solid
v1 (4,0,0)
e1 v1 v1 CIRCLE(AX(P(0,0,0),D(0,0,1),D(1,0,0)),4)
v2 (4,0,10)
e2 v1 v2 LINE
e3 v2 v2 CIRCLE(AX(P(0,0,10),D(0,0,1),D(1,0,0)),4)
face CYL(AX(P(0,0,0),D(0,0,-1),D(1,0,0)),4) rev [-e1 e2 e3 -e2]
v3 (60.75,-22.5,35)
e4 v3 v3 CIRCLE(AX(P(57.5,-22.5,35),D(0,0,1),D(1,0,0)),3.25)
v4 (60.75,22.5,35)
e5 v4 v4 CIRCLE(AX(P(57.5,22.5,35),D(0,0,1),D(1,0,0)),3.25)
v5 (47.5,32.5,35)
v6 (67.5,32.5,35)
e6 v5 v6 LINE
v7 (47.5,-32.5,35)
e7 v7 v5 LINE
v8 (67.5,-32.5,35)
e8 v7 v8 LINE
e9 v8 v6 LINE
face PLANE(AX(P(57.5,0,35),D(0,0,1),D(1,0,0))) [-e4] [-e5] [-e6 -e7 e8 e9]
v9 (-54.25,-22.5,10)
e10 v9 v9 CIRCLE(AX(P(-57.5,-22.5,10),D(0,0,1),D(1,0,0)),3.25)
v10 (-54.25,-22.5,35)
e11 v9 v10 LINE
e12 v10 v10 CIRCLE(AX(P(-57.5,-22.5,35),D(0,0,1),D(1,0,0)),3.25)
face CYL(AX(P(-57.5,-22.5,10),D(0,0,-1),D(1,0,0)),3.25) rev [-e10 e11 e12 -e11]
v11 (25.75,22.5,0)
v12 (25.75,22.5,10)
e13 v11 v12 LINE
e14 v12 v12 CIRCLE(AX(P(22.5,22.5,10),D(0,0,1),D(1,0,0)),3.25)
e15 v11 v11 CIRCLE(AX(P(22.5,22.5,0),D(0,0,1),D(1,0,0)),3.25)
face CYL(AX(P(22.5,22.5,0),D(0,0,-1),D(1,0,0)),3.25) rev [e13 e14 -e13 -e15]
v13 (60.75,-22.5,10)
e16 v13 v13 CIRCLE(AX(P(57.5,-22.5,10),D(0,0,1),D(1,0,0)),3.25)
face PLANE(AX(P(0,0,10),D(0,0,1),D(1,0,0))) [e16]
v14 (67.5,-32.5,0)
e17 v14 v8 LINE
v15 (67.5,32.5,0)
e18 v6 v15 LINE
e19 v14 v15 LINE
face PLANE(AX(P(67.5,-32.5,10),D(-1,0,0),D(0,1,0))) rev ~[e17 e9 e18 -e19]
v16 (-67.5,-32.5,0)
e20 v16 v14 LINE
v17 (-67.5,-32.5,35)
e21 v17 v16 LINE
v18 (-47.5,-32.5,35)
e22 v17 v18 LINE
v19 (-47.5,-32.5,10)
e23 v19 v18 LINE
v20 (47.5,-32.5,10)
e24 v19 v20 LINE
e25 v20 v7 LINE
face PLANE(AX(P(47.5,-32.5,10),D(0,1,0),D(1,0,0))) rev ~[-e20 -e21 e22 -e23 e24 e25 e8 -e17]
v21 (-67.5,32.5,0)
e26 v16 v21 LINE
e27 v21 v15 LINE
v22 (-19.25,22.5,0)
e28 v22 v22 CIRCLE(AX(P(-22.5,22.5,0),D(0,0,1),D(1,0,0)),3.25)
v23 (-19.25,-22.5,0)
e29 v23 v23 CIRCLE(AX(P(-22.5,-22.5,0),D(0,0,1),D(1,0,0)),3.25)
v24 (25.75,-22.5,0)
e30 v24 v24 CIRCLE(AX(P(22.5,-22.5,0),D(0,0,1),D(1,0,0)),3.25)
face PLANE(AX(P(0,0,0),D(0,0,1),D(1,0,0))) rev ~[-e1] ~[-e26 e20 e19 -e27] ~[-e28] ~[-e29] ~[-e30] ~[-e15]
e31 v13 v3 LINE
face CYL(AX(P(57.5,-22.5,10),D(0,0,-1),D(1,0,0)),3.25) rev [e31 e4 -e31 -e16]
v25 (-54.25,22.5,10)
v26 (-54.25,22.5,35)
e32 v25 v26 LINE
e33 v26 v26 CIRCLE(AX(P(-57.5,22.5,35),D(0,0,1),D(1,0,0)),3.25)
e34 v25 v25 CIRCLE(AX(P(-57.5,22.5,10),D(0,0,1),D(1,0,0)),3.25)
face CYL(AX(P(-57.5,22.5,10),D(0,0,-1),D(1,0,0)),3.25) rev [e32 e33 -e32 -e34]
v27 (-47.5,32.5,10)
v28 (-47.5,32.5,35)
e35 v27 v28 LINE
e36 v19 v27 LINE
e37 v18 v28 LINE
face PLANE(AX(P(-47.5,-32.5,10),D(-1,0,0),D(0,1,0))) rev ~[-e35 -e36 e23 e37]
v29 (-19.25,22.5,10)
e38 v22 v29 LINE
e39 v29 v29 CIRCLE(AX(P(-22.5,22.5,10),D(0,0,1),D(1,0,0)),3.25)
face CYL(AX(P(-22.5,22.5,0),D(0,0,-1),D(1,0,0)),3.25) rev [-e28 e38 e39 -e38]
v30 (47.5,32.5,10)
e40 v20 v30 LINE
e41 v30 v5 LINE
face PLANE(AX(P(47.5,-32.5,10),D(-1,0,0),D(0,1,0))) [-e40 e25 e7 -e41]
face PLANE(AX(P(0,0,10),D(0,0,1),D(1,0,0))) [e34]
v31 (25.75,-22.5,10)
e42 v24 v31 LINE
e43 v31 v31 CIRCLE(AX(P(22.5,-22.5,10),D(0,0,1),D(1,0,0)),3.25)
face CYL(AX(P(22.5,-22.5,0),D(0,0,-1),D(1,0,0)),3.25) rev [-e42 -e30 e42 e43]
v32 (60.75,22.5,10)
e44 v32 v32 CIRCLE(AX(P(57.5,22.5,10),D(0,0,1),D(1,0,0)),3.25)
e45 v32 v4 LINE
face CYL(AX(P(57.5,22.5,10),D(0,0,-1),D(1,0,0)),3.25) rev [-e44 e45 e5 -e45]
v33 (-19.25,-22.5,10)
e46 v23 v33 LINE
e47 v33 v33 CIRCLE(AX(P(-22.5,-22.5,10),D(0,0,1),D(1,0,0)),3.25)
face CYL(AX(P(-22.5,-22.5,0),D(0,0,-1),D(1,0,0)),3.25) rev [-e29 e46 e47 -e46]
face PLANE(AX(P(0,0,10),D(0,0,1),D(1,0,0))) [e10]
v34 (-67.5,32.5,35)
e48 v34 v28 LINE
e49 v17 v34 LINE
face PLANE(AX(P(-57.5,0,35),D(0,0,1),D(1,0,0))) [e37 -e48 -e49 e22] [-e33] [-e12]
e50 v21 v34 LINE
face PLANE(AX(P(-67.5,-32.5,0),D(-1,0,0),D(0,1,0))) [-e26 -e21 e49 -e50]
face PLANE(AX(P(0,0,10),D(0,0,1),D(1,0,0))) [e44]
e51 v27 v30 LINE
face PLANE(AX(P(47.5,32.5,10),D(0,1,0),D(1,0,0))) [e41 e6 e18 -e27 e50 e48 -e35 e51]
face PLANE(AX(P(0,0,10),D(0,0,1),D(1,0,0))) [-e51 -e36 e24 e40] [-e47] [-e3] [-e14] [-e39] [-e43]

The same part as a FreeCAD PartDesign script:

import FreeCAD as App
import Part
import Sketcher
from FreeCAD import Vector
Q = App.Units.Quantity

doc = App.newDocument("Part")
body = doc.addObject("PartDesign::Body", "Body")

# Sketch on XY plane
sketch1 = body.newObject("Sketcher::SketchObject", "Sketch")
sketch1.AttachmentSupport = (doc.getObject("XY_Plane"), [""])
sketch1.MapMode = "FlatFace"
sketch1.addGeometry([
    Part.LineSegment(Vector(-67.5, 32.5, 0), Vector(-67.5, -32.5, 0)),  # 0
    Part.LineSegment(Vector(-67.5, -32.5, 0), Vector(67.5, -32.5, 0)),  # 1
    Part.LineSegment(Vector(67.5, -32.5, 0), Vector(67.5, 32.5, 0)),  # 2
    Part.LineSegment(Vector(67.5, 32.5, 0), Vector(-67.5, 32.5, 0)),  # 3
    Part.Circle(Vector(-22.5, -22.5, 0), Vector(0, 0, 1), 3.2),  # 4
    Part.Circle(Vector(0, 0, 0), Vector(0, 0, 1), 4),  # 5
    Part.Circle(Vector(22.5, -22.5, 0), Vector(0, 0, 1), 3.2),  # 6
    Part.Circle(Vector(-22.5, 22.5, 0), Vector(0, 0, 1), 3.2),  # 7
    Part.Circle(Vector(22.5, 22.5, 0), Vector(0, 0, 1), 3.2),  # 8
], False)
sketch1.addConstraint([
    Sketcher.Constraint("Coincident", 0, 2, 1, 1),
    Sketcher.Constraint("Coincident", 1, 2, 2, 1),
    Sketcher.Constraint("Coincident", 2, 2, 3, 1),
    Sketcher.Constraint("Coincident", 3, 2, 0, 1),
    Sketcher.Constraint("Vertical", 0),
    Sketcher.Constraint("Horizontal", 1),
    Sketcher.Constraint("Vertical", 2),
    Sketcher.Constraint("Horizontal", 3),
    Sketcher.Constraint("Coincident", 5, 3, -1, 1),
    Sketcher.Constraint("Equal", 4, 6),
    Sketcher.Constraint("Equal", 6, 7),
    Sketcher.Constraint("Equal", 7, 8),
    Sketcher.Constraint("Symmetric", 6, 3, 7, 3, -1, 1),
    Sketcher.Constraint("Symmetric", 4, 3, 8, 3, -1, 1),
    Sketcher.Constraint("Symmetric", 0, 2, 2, 2, -1, 1),
    Sketcher.Constraint("Symmetric", 4, 3, 6, 3, -2),
    Sketcher.Constraint("Diameter", 5, Q("8 mm")),
    Sketcher.Constraint("Diameter", 4, Q("6.5 mm")),
    Sketcher.Constraint("DistanceX", 1, 1, 1, 2, Q("135 mm")),
    Sketcher.Constraint("DistanceY", 0, 2, 0, 1, Q("65 mm")),
    Sketcher.Constraint("DistanceX", 4, 3, 6, 3, Q("45 mm")),
    Sketcher.Constraint("DistanceY", 4, 3, 7, 3, Q("45 mm")),
])
pad1 = body.newObject("PartDesign::Pad", "Pad")
pad1.Profile = sketch1
pad1.Length = 10

# Sketch on XY plane
sketch2 = body.newObject("Sketcher::SketchObject", "Sketch001")
sketch2.AttachmentSupport = (doc.getObject("XY_Plane"), [""])
sketch2.MapMode = "FlatFace"
sketch2.AttachmentOffset = App.Placement(Vector(0, 0, 10), App.Rotation())
sketch2.addGeometry([
    Part.LineSegment(Vector(47.5, 32.5, 0), Vector(47.5, -32.5, 0)),  # 0
    Part.LineSegment(Vector(47.5, -32.5, 0), Vector(67.5, -32.5, 0)),  # 1
    Part.LineSegment(Vector(67.5, -32.5, 0), Vector(67.5, 32.5, 0)),  # 2
    Part.LineSegment(Vector(67.5, 32.5, 0), Vector(47.5, 32.5, 0)),  # 3
    Part.Circle(Vector(57.5, -22.5, 0), Vector(0, 0, 1), 3.2),  # 4
    Part.Circle(Vector(57.5, 22.5, 0), Vector(0, 0, 1), 3.2),  # 5
    Part.LineSegment(Vector(-67.5, 32.5, 0), Vector(-67.5, -32.5, 0)),  # 6
    Part.LineSegment(Vector(-67.5, -32.5, 0), Vector(-47.5, -32.5, 0)),  # 7
    Part.LineSegment(Vector(-47.5, -32.5, 0), Vector(-47.5, 32.5, 0)),  # 8
    Part.LineSegment(Vector(-47.5, 32.5, 0), Vector(-67.5, 32.5, 0)),  # 9
    Part.Circle(Vector(-57.5, -22.5, 0), Vector(0, 0, 1), 3.2),  # 10
    Part.Circle(Vector(-57.5, 22.5, 0), Vector(0, 0, 1), 3.2),  # 11
], False)
sketch2.addConstraint([
    Sketcher.Constraint("Coincident", 0, 2, 1, 1),
    Sketcher.Constraint("Coincident", 1, 2, 2, 1),
    Sketcher.Constraint("Coincident", 2, 2, 3, 1),
    Sketcher.Constraint("Coincident", 3, 2, 0, 1),
    Sketcher.Constraint("Coincident", 6, 2, 7, 1),
    Sketcher.Constraint("Coincident", 7, 2, 8, 1),
    Sketcher.Constraint("Coincident", 8, 2, 9, 1),
    Sketcher.Constraint("Coincident", 9, 2, 6, 1),
    Sketcher.Constraint("Vertical", 0),
    Sketcher.Constraint("Horizontal", 1),
    Sketcher.Constraint("Vertical", 2),
    Sketcher.Constraint("Horizontal", 3),
    Sketcher.Constraint("Vertical", 6),
    Sketcher.Constraint("Horizontal", 7),
    Sketcher.Constraint("Vertical", 8),
    Sketcher.Constraint("Horizontal", 9),
    Sketcher.Constraint("Equal", 4, 5),
    Sketcher.Constraint("Equal", 5, 10),
    Sketcher.Constraint("Equal", 10, 11),
    Sketcher.Constraint("Symmetric", 5, 3, 10, 3, -1, 1),
    Sketcher.Constraint("Symmetric", 4, 3, 11, 3, -1, 1),
    Sketcher.Constraint("Symmetric", 2, 2, 6, 2, -1, 1),
    Sketcher.Constraint("Symmetric", 0, 2, 8, 2, -1, 1),
    Sketcher.Constraint("Symmetric", 4, 3, 10, 3, -2),
    Sketcher.Constraint("Horizontal", 1, 2, 6, 2),
    Sketcher.Constraint("Diameter", 4, Q("6.5 mm")),
    Sketcher.Constraint("DistanceX", 1, 1, 1, 2, Q("20 mm")),
    Sketcher.Constraint("DistanceY", 0, 2, 0, 1, Q("65 mm")),
    Sketcher.Constraint("DistanceY", 4, 3, 5, 3, Q("45 mm")),
    Sketcher.Constraint("DistanceX", 10, 3, 4, 3, Q("115 mm")),
    Sketcher.Constraint("DistanceX", 0, 2, 4, 3, Q("10 mm")),
])
pad2 = body.newObject("PartDesign::Pad", "Pad001")
pad2.Profile = sketch2
pad2.Length = 25

doc.recompute()
